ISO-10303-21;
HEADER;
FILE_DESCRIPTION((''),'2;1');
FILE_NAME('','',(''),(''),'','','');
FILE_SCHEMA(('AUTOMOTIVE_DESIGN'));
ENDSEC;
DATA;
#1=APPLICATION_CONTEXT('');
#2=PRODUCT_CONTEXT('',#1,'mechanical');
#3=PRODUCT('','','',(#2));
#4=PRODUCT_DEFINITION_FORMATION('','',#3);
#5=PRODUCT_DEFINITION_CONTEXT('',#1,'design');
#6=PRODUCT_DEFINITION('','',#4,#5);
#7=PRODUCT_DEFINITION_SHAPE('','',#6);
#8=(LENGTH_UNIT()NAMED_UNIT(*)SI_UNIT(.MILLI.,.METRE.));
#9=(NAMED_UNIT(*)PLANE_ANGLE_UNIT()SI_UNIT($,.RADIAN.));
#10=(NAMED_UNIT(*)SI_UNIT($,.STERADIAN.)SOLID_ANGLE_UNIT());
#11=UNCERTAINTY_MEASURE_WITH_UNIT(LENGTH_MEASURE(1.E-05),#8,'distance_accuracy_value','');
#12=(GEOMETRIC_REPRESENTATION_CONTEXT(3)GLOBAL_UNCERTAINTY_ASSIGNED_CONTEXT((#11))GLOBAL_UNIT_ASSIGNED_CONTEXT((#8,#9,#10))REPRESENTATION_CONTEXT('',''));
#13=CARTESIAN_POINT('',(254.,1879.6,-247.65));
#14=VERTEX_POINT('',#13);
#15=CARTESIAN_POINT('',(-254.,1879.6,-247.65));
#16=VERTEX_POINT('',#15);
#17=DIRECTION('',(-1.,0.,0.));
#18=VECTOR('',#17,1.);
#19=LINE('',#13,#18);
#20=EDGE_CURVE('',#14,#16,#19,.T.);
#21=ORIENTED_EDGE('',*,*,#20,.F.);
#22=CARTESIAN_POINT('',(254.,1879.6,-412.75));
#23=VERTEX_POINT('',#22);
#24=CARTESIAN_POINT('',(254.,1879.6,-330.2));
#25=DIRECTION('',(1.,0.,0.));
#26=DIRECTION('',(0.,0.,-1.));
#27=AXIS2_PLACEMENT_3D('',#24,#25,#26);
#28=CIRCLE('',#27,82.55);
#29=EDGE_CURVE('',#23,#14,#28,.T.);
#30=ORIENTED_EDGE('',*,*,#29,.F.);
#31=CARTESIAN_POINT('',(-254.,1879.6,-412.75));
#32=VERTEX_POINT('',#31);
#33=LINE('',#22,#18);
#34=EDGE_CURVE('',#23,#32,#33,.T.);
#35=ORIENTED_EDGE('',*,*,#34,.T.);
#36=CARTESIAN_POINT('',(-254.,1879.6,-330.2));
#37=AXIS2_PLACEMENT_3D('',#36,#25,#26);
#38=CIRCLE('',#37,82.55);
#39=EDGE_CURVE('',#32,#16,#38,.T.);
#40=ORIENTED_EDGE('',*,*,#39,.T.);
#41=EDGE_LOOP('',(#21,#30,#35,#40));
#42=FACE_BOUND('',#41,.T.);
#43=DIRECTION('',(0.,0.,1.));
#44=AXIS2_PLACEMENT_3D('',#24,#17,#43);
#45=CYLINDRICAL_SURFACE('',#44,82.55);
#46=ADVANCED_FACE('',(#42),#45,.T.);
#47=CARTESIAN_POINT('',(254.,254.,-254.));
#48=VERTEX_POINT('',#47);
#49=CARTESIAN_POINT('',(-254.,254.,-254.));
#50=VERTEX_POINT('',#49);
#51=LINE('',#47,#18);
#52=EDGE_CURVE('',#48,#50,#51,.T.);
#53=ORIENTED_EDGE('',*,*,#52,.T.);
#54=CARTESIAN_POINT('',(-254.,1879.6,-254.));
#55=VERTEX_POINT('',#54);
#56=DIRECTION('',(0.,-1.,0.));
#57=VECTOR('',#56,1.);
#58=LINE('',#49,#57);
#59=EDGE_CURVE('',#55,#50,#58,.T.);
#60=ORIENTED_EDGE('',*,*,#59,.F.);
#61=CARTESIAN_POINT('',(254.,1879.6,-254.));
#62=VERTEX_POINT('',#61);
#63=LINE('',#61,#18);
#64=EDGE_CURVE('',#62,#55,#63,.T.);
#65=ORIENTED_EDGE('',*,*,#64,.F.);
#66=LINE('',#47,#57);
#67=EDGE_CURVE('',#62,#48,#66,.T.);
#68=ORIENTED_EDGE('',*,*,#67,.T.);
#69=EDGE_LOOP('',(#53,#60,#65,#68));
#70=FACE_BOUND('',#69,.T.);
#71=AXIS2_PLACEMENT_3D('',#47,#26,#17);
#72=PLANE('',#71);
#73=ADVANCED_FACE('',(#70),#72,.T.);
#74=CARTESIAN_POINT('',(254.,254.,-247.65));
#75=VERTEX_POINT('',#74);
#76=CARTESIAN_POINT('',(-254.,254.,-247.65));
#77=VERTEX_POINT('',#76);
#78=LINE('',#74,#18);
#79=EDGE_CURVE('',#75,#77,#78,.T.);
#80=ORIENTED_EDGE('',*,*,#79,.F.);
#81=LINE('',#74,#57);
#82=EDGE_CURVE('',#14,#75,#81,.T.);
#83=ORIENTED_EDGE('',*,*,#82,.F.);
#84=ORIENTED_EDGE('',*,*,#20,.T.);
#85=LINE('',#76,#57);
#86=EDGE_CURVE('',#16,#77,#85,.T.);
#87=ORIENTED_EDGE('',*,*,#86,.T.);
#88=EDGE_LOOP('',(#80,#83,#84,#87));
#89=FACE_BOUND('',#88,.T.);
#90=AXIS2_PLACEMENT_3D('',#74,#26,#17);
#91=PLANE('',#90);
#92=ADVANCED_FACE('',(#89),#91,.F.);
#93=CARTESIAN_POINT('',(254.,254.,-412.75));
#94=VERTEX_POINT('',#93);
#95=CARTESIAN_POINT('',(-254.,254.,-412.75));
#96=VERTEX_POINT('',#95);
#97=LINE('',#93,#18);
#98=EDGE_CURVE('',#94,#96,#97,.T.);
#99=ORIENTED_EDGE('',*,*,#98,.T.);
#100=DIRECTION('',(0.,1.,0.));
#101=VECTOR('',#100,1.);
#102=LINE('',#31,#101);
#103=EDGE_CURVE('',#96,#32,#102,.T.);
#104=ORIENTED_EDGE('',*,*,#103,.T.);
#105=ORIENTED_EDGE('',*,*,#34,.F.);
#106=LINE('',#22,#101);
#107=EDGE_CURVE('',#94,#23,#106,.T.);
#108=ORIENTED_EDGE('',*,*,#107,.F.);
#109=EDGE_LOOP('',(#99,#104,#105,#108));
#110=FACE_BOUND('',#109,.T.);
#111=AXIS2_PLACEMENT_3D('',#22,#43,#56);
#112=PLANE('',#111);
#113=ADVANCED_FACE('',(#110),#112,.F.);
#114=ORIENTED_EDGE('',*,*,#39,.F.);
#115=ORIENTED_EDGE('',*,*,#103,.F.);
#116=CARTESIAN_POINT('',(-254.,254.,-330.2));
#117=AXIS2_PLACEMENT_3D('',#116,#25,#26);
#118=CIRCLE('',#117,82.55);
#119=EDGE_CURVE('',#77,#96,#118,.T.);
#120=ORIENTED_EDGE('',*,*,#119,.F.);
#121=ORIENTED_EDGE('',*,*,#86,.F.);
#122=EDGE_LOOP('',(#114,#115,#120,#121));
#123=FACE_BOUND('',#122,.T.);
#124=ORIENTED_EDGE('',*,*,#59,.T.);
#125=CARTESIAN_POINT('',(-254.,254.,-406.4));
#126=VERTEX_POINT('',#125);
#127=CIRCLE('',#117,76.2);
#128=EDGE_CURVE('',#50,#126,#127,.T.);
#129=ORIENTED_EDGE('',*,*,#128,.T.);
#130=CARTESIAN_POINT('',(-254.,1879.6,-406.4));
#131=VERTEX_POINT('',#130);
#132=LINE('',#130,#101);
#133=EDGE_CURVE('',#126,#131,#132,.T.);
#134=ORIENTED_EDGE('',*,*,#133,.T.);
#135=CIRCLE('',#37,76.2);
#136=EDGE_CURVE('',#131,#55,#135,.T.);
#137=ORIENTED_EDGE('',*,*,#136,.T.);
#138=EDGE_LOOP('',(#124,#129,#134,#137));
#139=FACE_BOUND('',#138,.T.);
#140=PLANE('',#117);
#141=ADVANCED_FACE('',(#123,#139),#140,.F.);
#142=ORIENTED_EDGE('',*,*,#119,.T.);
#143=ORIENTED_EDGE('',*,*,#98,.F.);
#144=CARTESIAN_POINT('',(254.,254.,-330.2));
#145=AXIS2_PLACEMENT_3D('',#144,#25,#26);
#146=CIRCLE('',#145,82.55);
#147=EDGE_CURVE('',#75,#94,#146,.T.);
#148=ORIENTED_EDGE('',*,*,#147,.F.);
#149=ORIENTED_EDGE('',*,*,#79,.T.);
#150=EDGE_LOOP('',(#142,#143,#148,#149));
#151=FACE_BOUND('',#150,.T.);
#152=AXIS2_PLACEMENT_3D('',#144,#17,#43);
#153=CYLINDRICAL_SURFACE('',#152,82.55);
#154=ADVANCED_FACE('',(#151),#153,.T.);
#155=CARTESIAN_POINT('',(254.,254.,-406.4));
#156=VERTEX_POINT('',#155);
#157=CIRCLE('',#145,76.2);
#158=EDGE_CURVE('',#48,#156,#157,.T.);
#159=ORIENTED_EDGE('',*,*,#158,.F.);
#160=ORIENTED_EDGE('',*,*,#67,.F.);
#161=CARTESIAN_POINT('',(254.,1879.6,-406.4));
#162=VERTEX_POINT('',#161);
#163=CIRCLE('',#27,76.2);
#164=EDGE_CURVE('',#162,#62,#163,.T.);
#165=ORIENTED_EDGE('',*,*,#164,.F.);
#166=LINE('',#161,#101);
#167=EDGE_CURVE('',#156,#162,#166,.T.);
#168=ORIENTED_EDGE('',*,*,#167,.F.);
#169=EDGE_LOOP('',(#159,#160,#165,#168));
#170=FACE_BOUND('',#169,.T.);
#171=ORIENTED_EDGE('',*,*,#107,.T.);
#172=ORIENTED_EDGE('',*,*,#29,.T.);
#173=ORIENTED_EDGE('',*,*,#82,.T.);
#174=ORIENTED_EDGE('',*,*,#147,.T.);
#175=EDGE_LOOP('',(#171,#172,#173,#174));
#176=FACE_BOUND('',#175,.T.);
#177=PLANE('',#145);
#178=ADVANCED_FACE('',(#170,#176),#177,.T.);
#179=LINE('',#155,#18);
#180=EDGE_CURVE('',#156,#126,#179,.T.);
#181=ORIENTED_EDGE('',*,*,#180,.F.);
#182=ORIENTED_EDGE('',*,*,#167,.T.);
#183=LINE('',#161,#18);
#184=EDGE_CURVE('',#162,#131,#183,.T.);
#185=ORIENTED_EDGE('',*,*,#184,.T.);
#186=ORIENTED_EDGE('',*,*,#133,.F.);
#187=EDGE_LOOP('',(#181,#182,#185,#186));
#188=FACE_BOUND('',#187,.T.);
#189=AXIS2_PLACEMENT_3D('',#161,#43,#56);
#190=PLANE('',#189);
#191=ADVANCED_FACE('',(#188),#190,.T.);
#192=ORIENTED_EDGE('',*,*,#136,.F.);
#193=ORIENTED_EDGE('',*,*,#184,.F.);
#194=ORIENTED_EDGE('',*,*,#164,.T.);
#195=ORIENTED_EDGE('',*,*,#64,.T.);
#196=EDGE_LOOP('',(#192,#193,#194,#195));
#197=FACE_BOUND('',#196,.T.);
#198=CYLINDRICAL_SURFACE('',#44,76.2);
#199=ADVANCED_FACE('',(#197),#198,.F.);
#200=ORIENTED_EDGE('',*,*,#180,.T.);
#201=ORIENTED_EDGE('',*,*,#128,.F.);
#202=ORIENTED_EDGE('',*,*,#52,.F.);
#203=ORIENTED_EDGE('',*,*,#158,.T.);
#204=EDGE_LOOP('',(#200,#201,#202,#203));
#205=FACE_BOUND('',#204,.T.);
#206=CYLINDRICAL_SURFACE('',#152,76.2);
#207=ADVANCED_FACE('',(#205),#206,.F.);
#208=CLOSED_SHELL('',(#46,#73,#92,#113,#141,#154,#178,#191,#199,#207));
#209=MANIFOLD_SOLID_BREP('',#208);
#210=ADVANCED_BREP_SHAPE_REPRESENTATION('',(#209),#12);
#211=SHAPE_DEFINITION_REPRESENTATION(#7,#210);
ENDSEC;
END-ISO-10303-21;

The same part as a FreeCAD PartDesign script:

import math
import FreeCAD as App
import Part
import Sketcher
Q = App.Units.Quantity

doc = App.newDocument("Part")
params = doc.addObject("Spreadsheet::Sheet", "Params")
for row, (alias, value) in enumerate([
    ("sketch1_radius", "3 in"),
    ("sketch1_width", "64 in"),
    ("sketch1_radius2", "3.25 in"),
    ("pad1_length", "20 in"),
], start=1):
    params.set(f"A{row}", alias)
    params.set(f"B{row}", "=" + value)
    params.setAlias(f"B{row}", alias)

body = doc.addObject("PartDesign::Body", "Body")

# Sketch on YZ plane
sketch1 = doc.addObject("Sketcher::SketchObject", "Sketch")
body.addObject(sketch1)
sketch1.AttachmentSupport = (doc.YZ_Plane, [""])
sketch1.MapMode = "FlatFace"
sketch1.addGeometry([
    Part.LineSegment(App.Vector(1880, -248, 0), App.Vector(254, -248, 0)),  # 0
    Part.ArcOfCircle(Part.Circle(App.Vector(254, -330, 0), App.Vector(0, 0, 1), 83), math.radians(90), math.radians(270)),  # 1
    Part.LineSegment(App.Vector(254, -413, 0), App.Vector(1880, -413, 0)),  # 2
    Part.ArcOfCircle(Part.Circle(App.Vector(1880, -330, 0), App.Vector(0, 0, 1), 83), math.radians(-90), math.radians(90)),  # 3
    Part.LineSegment(App.Vector(1880, -406, 0), App.Vector(254, -406, 0)),  # 4
    Part.ArcOfCircle(Part.Circle(App.Vector(254, -330, 0), App.Vector(0, 0, 1), 76), math.radians(90), math.radians(270)),  # 5
    Part.LineSegment(App.Vector(254, -254, 0), App.Vector(1880, -254, 0)),  # 6
    Part.ArcOfCircle(Part.Circle(App.Vector(1880, -330, 0), App.Vector(0, 0, 1), 76), math.radians(-90), math.radians(90)),  # 7
], False)
sketch1.addConstraint([
    Sketcher.Constraint("Tangent", 0, 2, 1, 1),
    Sketcher.Constraint("Tangent", 1, 2, 2, 1),
    Sketcher.Constraint("Tangent", 2, 2, 3, 1),
    Sketcher.Constraint("Tangent", 3, 2, 0, 1),
    Sketcher.Constraint("Tangent", 4, 2, 5, 2),
    Sketcher.Constraint("Tangent", 5, 1, 6, 1),
    Sketcher.Constraint("Tangent", 6, 2, 7, 2),
    Sketcher.Constraint("Tangent", 7, 1, 4, 1),
    Sketcher.Constraint("Horizontal", 0),
    Sketcher.Constraint("Horizontal", 2),
    Sketcher.Constraint("Horizontal", 4),
    Sketcher.Constraint("Horizontal", 6),
    Sketcher.Constraint("Coincident", 5, 3, 1, 3),
    Sketcher.Constraint("Vertical", 7, 3, 2, 2),
    Sketcher.Constraint("Radius", 5, Q("3 in")),
    Sketcher.Constraint("DistanceX", 0, 2, 0, 1, Q("64 in")),
    Sketcher.Constraint("Radius", 1, Q("3.25 in")),
    Sketcher.Constraint("DistanceX", -1, 1, 1, 3, Q("10 in")),
    Sketcher.Constraint("DistanceY", 1, 3, -1, 1, Q("13 in")),
])
sketch1.setExpression("Constraints[14]", "Params.sketch1_radius")
sketch1.setExpression("Constraints[15]", "Params.sketch1_width")
sketch1.setExpression("Constraints[16]", "Params.sketch1_radius2")
pad1 = doc.addObject("PartDesign::Pad", "Pad")
body.addObject(pad1)
pad1.Profile = sketch1
pad1.setExpression("Length", "Params.pad1_length")
pad1.Midplane = True

doc.recompute()
